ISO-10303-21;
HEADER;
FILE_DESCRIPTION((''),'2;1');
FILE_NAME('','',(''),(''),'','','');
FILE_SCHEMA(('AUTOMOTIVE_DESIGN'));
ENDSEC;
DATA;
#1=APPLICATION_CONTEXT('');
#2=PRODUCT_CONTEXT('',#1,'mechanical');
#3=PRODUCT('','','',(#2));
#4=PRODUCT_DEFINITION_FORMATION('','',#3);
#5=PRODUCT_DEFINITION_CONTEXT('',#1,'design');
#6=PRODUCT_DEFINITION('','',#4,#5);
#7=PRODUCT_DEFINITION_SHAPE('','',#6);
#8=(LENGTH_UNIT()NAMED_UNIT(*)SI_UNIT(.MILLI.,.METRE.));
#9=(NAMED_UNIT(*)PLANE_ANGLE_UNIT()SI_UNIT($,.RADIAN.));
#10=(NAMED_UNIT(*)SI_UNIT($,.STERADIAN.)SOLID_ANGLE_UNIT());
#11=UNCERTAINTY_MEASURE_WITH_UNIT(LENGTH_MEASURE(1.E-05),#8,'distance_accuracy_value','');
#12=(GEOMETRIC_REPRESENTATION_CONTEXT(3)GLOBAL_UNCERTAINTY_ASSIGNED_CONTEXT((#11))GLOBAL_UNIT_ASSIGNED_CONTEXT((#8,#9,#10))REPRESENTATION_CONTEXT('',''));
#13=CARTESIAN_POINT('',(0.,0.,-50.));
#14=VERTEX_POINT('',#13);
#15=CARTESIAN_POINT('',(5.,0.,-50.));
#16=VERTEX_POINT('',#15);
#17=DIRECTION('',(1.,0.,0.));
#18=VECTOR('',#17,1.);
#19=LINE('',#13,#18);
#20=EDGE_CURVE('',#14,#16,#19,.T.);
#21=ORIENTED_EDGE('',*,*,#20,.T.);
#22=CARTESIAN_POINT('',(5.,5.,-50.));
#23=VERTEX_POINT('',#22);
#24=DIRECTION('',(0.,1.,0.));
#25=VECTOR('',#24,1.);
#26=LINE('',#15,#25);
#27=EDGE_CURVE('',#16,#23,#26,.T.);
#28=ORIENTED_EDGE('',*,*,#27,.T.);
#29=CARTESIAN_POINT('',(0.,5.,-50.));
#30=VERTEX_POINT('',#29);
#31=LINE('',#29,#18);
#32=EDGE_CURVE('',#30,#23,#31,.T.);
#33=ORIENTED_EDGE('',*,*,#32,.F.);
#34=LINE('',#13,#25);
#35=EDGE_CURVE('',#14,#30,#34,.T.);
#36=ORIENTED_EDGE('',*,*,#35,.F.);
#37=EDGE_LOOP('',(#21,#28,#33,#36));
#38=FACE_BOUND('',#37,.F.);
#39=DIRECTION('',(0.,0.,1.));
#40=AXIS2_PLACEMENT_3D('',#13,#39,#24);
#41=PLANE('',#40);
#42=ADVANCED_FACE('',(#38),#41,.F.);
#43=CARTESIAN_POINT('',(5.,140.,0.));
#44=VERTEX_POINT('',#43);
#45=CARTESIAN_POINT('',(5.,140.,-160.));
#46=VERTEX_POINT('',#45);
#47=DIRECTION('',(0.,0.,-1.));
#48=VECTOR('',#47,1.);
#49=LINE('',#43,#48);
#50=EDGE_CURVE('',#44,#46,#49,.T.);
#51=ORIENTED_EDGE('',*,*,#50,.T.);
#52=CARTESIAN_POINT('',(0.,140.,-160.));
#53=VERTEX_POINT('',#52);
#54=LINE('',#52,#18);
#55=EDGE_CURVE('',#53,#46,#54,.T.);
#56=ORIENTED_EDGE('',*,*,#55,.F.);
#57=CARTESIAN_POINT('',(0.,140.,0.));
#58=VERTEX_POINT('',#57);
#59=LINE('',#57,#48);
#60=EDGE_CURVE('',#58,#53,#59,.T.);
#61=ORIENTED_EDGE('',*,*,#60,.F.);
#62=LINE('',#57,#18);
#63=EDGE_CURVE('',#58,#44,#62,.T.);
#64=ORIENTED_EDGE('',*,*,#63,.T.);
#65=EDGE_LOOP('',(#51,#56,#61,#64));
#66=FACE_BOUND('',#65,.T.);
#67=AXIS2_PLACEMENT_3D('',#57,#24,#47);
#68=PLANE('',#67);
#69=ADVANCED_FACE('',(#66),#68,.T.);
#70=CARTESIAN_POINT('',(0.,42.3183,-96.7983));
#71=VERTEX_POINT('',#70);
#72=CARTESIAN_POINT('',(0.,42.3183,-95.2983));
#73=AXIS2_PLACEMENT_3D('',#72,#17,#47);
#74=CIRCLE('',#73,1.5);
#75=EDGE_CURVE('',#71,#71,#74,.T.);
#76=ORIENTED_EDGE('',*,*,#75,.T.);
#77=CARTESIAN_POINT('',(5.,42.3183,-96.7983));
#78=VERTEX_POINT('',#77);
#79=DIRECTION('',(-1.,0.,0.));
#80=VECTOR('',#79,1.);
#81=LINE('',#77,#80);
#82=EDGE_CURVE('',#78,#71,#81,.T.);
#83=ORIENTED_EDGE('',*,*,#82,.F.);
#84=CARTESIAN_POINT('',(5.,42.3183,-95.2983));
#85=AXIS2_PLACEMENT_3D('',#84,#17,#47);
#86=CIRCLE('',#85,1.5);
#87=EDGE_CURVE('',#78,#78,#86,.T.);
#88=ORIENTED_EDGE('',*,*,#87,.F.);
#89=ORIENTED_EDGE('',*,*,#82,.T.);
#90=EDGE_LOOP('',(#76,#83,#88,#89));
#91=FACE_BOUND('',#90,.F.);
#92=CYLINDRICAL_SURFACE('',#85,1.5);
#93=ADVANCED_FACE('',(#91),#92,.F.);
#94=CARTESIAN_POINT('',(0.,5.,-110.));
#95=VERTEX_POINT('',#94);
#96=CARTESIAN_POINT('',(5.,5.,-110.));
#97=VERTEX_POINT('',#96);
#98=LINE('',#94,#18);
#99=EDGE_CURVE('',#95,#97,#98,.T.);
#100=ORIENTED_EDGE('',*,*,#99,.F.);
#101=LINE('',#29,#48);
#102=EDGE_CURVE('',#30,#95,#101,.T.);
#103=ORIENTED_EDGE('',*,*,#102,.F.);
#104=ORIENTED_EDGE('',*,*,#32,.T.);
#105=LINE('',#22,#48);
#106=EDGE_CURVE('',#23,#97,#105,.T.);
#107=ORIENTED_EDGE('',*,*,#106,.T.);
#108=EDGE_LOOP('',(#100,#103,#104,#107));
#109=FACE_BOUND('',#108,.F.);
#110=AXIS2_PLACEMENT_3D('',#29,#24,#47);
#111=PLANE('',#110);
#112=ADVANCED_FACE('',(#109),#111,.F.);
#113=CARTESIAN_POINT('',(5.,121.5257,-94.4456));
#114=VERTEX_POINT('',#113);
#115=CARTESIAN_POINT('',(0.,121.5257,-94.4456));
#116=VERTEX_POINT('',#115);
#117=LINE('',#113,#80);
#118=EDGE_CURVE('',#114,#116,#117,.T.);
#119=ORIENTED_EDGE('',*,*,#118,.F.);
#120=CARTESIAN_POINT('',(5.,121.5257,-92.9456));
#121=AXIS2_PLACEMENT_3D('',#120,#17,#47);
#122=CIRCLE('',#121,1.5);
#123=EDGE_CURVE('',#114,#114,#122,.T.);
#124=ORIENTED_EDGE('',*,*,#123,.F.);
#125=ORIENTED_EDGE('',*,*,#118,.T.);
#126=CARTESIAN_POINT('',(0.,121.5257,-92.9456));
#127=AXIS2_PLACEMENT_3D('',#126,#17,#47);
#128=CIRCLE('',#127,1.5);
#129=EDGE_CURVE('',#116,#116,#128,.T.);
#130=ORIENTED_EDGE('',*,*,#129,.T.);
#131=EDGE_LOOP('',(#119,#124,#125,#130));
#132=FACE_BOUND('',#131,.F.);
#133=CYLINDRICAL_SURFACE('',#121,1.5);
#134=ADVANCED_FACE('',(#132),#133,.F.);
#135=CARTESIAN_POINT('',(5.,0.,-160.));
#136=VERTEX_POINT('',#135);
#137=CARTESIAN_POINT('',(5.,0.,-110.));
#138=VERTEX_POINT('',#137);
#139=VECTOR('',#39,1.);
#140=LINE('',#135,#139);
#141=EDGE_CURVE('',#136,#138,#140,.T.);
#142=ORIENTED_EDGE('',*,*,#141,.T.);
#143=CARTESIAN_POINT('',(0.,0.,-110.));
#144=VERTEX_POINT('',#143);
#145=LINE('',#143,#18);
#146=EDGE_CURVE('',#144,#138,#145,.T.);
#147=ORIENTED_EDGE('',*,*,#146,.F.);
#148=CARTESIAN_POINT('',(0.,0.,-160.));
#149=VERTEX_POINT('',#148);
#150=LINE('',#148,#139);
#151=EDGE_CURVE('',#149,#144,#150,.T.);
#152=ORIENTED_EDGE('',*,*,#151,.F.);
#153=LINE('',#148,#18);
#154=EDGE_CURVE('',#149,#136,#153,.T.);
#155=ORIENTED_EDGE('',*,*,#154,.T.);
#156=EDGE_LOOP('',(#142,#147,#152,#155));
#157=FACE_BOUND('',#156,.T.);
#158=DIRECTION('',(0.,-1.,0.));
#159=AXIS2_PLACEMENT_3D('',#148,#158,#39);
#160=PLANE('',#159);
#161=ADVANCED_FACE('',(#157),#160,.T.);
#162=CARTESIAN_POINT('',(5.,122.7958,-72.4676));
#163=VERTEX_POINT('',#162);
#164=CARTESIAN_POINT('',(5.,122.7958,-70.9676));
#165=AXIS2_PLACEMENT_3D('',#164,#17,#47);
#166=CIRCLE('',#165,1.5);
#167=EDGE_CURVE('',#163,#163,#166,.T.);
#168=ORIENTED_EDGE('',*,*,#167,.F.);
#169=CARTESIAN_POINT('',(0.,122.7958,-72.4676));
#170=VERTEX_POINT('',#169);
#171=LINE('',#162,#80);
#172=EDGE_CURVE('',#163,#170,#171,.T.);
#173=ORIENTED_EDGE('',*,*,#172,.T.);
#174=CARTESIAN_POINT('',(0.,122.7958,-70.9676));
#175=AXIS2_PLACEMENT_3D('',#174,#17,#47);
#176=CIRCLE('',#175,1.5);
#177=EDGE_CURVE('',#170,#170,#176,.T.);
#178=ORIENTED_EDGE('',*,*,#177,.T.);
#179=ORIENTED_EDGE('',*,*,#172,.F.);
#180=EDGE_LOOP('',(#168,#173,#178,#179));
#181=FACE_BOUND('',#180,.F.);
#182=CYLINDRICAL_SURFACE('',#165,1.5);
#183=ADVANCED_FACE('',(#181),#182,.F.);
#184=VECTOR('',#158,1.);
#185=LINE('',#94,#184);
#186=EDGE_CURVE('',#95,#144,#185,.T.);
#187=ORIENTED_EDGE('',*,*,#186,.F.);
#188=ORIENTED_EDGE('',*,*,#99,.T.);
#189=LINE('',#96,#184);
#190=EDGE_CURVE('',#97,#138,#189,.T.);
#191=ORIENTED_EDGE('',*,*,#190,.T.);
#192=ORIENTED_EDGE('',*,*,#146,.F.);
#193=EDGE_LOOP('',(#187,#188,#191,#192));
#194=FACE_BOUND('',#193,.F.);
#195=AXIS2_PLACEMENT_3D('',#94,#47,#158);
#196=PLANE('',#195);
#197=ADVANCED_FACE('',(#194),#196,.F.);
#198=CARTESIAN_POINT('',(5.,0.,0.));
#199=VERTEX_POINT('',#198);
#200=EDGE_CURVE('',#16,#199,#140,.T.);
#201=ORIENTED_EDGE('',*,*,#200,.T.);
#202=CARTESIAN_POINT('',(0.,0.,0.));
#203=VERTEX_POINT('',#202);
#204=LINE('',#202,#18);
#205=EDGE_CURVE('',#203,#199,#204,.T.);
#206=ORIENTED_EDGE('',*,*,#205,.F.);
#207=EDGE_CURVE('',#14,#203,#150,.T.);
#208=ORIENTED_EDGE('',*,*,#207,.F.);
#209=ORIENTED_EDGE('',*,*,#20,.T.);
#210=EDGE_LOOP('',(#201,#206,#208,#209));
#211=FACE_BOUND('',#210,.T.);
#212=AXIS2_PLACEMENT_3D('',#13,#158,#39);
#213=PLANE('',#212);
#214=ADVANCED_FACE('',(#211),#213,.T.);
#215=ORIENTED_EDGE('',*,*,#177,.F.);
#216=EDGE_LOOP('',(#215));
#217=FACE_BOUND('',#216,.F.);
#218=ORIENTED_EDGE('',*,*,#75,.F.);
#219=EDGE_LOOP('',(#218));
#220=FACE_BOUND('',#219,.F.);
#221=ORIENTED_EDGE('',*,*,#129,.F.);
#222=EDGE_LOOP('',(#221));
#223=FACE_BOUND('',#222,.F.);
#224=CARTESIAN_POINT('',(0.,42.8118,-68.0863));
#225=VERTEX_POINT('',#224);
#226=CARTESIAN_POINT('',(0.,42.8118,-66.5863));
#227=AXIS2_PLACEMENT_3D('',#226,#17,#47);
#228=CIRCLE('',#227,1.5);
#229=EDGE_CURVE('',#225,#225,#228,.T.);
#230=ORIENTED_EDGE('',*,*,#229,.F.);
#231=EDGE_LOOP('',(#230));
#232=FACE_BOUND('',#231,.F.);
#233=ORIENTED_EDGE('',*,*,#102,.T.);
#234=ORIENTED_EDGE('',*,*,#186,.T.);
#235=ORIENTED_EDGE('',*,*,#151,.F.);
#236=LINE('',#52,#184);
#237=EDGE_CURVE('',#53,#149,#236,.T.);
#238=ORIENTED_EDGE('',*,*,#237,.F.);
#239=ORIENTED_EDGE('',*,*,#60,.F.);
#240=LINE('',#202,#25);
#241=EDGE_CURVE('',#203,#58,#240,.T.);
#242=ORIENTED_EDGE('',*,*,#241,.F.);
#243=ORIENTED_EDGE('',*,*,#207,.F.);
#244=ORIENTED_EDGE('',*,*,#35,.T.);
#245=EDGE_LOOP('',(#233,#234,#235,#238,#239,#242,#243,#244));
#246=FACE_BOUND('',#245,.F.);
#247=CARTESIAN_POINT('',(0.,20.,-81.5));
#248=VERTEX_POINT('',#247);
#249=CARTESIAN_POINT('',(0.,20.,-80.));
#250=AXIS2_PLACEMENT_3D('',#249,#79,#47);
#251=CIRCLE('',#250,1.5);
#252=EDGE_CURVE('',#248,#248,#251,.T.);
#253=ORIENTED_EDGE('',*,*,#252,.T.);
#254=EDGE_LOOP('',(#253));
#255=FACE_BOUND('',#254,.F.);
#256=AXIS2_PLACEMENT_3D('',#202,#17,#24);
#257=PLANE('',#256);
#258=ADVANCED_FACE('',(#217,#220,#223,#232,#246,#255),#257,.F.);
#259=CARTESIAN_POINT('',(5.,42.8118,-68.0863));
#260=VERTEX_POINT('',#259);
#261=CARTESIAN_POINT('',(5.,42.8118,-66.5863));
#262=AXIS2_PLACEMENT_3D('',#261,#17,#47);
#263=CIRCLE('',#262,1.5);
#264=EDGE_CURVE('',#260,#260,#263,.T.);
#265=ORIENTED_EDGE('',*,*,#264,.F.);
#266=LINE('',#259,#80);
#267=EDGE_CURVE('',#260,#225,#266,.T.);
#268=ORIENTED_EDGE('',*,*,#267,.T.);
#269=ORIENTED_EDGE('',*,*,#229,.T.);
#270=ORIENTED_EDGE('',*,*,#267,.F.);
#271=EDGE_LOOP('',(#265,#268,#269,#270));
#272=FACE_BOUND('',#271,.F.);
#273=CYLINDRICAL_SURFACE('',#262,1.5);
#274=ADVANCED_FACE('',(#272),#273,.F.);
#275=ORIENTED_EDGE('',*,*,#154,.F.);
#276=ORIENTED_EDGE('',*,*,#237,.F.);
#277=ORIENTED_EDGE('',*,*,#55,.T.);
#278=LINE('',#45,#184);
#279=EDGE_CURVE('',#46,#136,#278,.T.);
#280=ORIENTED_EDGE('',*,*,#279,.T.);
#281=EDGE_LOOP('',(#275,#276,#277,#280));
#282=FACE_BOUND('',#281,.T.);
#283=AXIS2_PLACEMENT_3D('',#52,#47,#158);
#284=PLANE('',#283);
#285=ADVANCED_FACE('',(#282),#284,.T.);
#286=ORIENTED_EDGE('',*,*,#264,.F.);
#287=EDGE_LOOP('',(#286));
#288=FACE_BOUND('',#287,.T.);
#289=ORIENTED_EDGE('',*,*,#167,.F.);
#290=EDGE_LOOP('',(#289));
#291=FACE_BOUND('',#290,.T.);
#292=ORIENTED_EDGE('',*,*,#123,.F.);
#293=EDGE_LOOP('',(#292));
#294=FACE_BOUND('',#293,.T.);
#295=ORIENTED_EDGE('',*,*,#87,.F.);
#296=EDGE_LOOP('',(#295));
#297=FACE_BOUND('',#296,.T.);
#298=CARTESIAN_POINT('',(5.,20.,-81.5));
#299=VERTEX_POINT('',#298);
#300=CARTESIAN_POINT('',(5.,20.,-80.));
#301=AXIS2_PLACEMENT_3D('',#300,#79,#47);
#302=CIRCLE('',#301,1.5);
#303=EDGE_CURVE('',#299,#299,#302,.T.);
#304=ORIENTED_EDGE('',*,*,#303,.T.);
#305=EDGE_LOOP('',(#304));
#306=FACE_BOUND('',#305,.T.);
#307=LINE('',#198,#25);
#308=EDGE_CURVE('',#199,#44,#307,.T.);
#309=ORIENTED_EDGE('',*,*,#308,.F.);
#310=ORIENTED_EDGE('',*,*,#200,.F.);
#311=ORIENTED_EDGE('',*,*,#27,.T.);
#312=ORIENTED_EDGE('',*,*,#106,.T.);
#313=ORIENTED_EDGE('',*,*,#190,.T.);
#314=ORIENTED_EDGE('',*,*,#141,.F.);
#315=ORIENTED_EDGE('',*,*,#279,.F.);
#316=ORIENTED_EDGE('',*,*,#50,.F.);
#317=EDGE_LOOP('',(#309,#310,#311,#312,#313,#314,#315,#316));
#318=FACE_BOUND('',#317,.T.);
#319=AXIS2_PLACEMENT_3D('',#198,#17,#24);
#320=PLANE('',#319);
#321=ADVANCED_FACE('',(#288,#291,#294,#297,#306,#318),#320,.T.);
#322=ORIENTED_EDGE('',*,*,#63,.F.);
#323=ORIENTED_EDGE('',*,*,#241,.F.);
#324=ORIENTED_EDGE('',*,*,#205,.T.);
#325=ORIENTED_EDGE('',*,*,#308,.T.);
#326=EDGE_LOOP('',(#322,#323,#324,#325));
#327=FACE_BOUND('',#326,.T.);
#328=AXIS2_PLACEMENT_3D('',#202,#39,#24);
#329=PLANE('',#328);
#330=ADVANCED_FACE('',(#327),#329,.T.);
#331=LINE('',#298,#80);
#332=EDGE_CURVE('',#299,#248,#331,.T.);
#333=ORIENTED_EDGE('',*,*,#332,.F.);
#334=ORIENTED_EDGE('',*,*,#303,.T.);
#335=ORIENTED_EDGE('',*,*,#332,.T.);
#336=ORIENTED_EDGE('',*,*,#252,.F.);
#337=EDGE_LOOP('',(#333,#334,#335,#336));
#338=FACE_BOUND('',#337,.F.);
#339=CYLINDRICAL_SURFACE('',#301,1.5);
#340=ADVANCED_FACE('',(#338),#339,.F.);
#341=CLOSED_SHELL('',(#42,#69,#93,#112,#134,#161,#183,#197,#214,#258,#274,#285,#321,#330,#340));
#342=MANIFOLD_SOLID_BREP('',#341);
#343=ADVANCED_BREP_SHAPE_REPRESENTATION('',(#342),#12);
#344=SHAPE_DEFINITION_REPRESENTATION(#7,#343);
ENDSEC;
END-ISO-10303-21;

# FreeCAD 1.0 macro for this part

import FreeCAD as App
import Part
import Sketcher
from FreeCAD import Vector


def add_polygon(sketch, points):
    """Adds a closed chain of lines whose ends are joined by coincident constraints."""
    first, n = sketch.GeometryCount, len(points)
    for a, b in zip(points, points[1:] + points[:1]):
        sketch.addGeometry(Part.LineSegment(App.Vector(*a, 0), App.Vector(*b, 0)), False)
    for i in range(n):
        sketch.addConstraint(Sketcher.Constraint("Coincident", first + i, 2, first + (i + 1) % n, 1))

doc = App.newDocument("Part")
body = doc.addObject("PartDesign::Body", "Body")

# Sketch on YZ plane
sketch1 = body.newObject("Sketcher::SketchObject", "Sketch")
sketch1.AttachmentSupport = (doc.getObject("YZ_Plane"), [""])
sketch1.MapMode = "FlatFace"
add_polygon(sketch1, [(140, 0), (0, 0), (0, -50), (5, -50), (5, -110), (0, -110), (0, -160), (140, -160)])  # lines 0-7
sketch1.addConstraint([
    Sketcher.Constraint("Horizontal", 0),
    Sketcher.Constraint("Vertical", 1),
    Sketcher.Constraint("Horizontal", 2),
    Sketcher.Constraint("Vertical", 3),
    Sketcher.Constraint("Horizontal", 4),
    Sketcher.Constraint("Vertical", 5),
    Sketcher.Constraint("Horizontal", 6),
    Sketcher.Constraint("Vertical", 7),
    Sketcher.Constraint("Coincident", 0, 2, -1, 1),
    Sketcher.Constraint("PointOnObject", 4, 2, -2),
    Sketcher.Constraint("Equal", 1, 5),
    Sketcher.Constraint("DistanceX", 0, 2, 0, 1, 140.0),
    Sketcher.Constraint("DistanceX", 2, 1, 2, 2, 5.0),
    Sketcher.Constraint("DistanceY", 1, 2, 1, 1, 50.0),
    Sketcher.Constraint("DistanceY", 3, 2, 3, 1, 60.0),
])
pad1 = body.newObject("PartDesign::Pad", "Pad")
pad1.Profile = sketch1
pad1.Length = 5

# Sketch on YZ plane
sketch2 = body.newObject("Sketcher::SketchObject", "Sketch001")
sketch2.AttachmentSupport = (doc.getObject("YZ_Plane"), [""])
sketch2.MapMode = "FlatFace"
sketch2.AttachmentOffset = App.Placement(Vector(0, 0, 5), App.Rotation())
sketch2.addGeometry(Part.Circle(Vector(20, -80, 0), Vector(0, 0, 1), 1.5), False)
sketch2.addConstraint([
    Sketcher.Constraint("Diameter", 0, 3.0),
    Sketcher.Constraint("DistanceX", -1, 1, 0, 3, 20.0),
    Sketcher.Constraint("DistanceY", 0, 3, -1, 1, 80.0),
])
doc.recompute()
hole = body.newObject("PartDesign::Hole", "Hole")
hole.Profile = sketch2
hole.ThreadType = "None"
hole.Diameter = 3
hole.DepthType = "ThroughAll"

# Sketch on YZ plane
sketch3 = body.newObject("Sketcher::SketchObject", "Sketch002")
sketch3.AttachmentSupport = (doc.getObject("YZ_Plane"), [""])
sketch3.MapMode = "FlatFace"
sketch3.AttachmentOffset = App.Placement(Vector(0, 0, 5), App.Rotation())
sketch3.addGeometry([
    Part.Circle(Vector(42.3183, -95.2983, 0), Vector(0, 0, 1), 1.5),
    Part.Circle(Vector(121.5257, -92.9456, 0), Vector(0, 0, 1), 1.5),
    Part.Circle(Vector(122.7958, -70.9676, 0), Vector(0, 0, 1), 1.5),
    Part.Circle(Vector(42.8118, -66.5863, 0), Vector(0, 0, 1), 1.5),
], False)
sketch3.addConstraint([
    Sketcher.Constraint("Equal", 0, 1),
    Sketcher.Constraint("Equal", 1, 2),
    Sketcher.Constraint("Equal", 2, 3),
    Sketcher.Constraint("Diameter", 0, 3.0),
    Sketcher.Constraint("DistanceX", 1, 3, 2, 3, 1.27),
    Sketcher.Constraint("DistanceY", 1, 3, 2, 3, 21.978),
    Sketcher.Constraint("DistanceY", 0, 3, 3, 3, 28.712),
    Sketcher.Constraint("DistanceX", 3, 3, 2, 3, 79.984),
    Sketcher.Constraint("DistanceX", -1, 1, 0, 3, 42.3183),
    Sketcher.Constraint("DistanceY", 0, 3, -1, 1, 95.2983),
    Sketcher.Constraint("DistanceX", -1, 1, 1, 3, 121.5257),
    Sketcher.Constraint("DistanceY", 1, 3, -1, 1, 92.9456),
])
pocket1 = body.newObject("PartDesign::Pocket", "Pocket")
pocket1.Profile = sketch3
pocket1.Type = "ThroughAll"

doc.recompute()
